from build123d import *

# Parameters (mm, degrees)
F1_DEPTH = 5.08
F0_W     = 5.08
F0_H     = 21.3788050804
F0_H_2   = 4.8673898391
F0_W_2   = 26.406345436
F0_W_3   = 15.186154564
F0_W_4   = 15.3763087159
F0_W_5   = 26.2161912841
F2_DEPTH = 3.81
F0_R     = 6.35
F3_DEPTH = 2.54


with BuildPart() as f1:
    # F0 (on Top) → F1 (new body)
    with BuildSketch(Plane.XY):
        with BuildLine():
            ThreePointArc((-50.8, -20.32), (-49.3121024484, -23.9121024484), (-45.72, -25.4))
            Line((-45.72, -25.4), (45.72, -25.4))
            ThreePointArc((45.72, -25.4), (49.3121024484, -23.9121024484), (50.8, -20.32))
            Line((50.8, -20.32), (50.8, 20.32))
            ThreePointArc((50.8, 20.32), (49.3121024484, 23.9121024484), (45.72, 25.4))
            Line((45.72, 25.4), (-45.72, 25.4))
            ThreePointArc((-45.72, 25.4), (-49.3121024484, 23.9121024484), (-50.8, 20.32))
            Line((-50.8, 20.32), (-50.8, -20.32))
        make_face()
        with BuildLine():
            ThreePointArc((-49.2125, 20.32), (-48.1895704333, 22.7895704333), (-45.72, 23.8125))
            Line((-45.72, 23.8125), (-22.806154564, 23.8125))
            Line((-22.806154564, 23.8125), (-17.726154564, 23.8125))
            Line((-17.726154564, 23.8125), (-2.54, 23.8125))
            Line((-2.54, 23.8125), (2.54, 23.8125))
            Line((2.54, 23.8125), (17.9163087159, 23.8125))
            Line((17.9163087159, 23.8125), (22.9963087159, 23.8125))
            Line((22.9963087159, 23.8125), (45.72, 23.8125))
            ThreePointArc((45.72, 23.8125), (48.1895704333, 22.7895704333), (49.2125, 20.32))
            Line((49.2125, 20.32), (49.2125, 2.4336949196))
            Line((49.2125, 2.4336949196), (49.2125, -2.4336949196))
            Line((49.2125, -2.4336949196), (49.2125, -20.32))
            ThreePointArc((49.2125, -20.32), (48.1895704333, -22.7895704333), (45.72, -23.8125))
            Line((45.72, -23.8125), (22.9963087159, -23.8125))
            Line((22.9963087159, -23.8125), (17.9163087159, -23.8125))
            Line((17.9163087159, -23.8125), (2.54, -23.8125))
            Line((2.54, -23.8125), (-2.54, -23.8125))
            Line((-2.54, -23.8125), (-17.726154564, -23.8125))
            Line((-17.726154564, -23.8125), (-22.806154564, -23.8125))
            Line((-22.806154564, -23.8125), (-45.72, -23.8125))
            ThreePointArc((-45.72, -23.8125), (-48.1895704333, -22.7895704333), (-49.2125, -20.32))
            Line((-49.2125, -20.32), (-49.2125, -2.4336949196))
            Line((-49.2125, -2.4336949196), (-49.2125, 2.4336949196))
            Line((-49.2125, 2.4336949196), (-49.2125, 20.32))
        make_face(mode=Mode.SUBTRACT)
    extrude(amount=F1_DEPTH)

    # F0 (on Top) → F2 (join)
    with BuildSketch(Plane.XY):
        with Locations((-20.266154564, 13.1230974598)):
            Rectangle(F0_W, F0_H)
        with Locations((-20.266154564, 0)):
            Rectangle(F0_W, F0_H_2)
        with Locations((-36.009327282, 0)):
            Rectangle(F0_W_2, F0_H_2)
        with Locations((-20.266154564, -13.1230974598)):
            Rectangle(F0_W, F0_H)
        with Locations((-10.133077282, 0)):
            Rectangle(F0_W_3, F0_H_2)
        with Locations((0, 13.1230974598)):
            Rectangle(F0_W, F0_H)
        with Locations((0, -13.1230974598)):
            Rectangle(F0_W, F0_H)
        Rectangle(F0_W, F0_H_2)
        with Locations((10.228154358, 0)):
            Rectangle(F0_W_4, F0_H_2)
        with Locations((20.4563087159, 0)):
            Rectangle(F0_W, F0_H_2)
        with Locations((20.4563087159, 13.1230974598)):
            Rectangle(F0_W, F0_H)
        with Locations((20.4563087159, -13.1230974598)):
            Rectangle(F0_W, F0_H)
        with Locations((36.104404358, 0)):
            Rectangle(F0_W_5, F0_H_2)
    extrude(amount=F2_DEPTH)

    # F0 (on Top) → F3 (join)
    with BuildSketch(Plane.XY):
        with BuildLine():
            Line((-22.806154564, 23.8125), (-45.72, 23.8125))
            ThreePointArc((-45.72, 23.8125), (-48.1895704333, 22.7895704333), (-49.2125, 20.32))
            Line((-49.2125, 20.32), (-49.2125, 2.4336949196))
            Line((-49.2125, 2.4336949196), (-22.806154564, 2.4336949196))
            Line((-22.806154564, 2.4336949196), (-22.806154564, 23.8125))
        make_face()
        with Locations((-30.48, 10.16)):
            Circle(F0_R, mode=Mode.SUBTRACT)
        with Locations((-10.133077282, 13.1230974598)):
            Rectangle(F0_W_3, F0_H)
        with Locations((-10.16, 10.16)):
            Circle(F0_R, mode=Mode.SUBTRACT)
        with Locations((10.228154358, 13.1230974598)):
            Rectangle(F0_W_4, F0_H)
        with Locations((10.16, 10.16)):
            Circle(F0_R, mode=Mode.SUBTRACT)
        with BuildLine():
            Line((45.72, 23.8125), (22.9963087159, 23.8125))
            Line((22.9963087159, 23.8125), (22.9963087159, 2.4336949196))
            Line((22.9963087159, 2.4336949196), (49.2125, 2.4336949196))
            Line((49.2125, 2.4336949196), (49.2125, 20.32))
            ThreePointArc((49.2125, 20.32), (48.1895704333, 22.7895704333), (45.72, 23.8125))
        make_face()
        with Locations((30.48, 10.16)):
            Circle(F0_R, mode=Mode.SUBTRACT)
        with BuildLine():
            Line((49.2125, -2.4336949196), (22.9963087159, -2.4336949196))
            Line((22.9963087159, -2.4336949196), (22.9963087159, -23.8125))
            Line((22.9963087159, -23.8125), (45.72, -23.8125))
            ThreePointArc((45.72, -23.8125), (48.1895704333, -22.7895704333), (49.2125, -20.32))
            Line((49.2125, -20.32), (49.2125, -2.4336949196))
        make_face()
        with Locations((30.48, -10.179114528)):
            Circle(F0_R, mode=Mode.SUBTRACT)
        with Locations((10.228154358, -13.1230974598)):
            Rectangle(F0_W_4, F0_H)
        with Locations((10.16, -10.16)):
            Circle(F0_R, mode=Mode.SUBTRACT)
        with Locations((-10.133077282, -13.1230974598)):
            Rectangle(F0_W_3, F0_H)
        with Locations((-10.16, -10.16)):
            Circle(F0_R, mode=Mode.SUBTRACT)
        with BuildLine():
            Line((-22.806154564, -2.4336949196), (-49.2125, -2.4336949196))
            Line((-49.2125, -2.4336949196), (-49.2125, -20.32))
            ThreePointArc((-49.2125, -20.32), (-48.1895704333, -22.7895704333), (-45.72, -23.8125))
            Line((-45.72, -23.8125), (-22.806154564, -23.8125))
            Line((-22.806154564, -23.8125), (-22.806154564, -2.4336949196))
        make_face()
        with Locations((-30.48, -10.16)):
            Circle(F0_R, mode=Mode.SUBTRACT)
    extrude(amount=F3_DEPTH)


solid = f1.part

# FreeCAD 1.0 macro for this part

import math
import FreeCAD as App
import Part
import Sketcher
Q = App.Units.Quantity


def add_polygon(sketch, points):
    """Adds a closed chain of lines whose ends are joined by coincident constraints."""
    first, n = sketch.GeometryCount, len(points)
    for a, b in zip(points, points[1:] + points[:1]):
        sketch.addGeometry(Part.LineSegment(App.Vector(*a, 0), App.Vector(*b, 0)), False)
    for i in range(n):
        sketch.addConstraint(Sketcher.Constraint("Coincident", first + i, 2, first + (i + 1) % n, 1))

doc = App.newDocument("Part")
params = doc.addObject("Spreadsheet::Sheet", "Params")
for row, (alias, value) in enumerate([
    ("sketch1_radius", "0.2 in"),
    ("sketch1_width", "3.6 in"),
    ("sketch1_height", "1.6 in"),
    ("pad1_length", "0.2 in"),
    ("sketch2_width", "0.2 in"),
    ("pad2_length", "0.15 in"),
    ("sketch3_diameter", "0.5 in"),
    ("pad3_length", "0.1 in"),
], start=1):
    params.set(f"A{row}", alias)
    params.set(f"B{row}", "=" + value)
    params.setAlias(f"B{row}", alias)

body = doc.addObject("PartDesign::Body", "Body")

# Sketch on XY plane
sketch1 = body.newObject("Sketcher::SketchObject", "Sketch")
sketch1.AttachmentSupport = (doc.getObject("XY_Plane"), [""])
sketch1.MapMode = "FlatFace"
sketch1.addGeometry([
    Part.ArcOfCircle(Part.Circle(App.Vector(-45.7, -20.3, 0), App.Vector(0, 0, 1), 5.1), math.radians(180), math.radians(270)),  # 0
    Part.LineSegment(App.Vector(-45.7, -25.4, 0), App.Vector(45.7, -25.4, 0)),  # 1
    Part.ArcOfCircle(Part.Circle(App.Vector(45.7, -20.3, 0), App.Vector(0, 0, 1), 5.1), math.radians(-90), math.radians(0)),  # 2
    Part.LineSegment(App.Vector(50.8, -20.3, 0), App.Vector(50.8, 20.3, 0)),  # 3
    Part.ArcOfCircle(Part.Circle(App.Vector(45.7, 20.3, 0), App.Vector(0, 0, 1), 5.1), math.radians(0), math.radians(90)),  # 4
    Part.LineSegment(App.Vector(45.7, 25.4, 0), App.Vector(-45.7, 25.4, 0)),  # 5
    Part.ArcOfCircle(Part.Circle(App.Vector(-45.7, 20.3, 0), App.Vector(0, 0, 1), 5.1), math.radians(90), math.radians(180)),  # 6
    Part.LineSegment(App.Vector(-50.8, 20.3, 0), App.Vector(-50.8, -20.3, 0)),  # 7
    Part.LineSegment(App.Vector(-49.2, -20.3, 0), App.Vector(-49.2, 20.3, 0)),  # 8
    Part.ArcOfCircle(Part.Circle(App.Vector(-45.7, 20.3, 0), App.Vector(0, 0, 1), 3.5), math.radians(90), math.radians(180)),  # 9
    Part.LineSegment(App.Vector(-45.7, 23.8, 0), App.Vector(45.7, 23.8, 0)),  # 10
    Part.ArcOfCircle(Part.Circle(App.Vector(45.7, 20.3, 0), App.Vector(0, 0, 1), 3.5), math.radians(0), math.radians(90)),  # 11
    Part.LineSegment(App.Vector(49.2, 20.3, 0), App.Vector(49.2, -20.3, 0)),  # 12
    Part.ArcOfCircle(Part.Circle(App.Vector(45.7, -20.3, 0), App.Vector(0, 0, 1), 3.5), math.radians(-90), math.radians(0)),  # 13
    Part.LineSegment(App.Vector(45.7, -23.8, 0), App.Vector(-45.7, -23.8, 0)),  # 14
    Part.ArcOfCircle(Part.Circle(App.Vector(-45.7, -20.3, 0), App.Vector(0, 0, 1), 3.5), math.radians(180), math.radians(270)),  # 15
], False)
sketch1.addConstraint([
    Sketcher.Constraint("Tangent", 0, 2, 1, 1),
    Sketcher.Constraint("Tangent", 1, 2, 2, 1),
    Sketcher.Constraint("Tangent", 2, 2, 3, 1),
    Sketcher.Constraint("Tangent", 3, 2, 4, 1),
    Sketcher.Constraint("Tangent", 4, 2, 5, 1),
    Sketcher.Constraint("Tangent", 5, 2, 6, 1),
    Sketcher.Constraint("Tangent", 6, 2, 7, 1),
    Sketcher.Constraint("Tangent", 7, 2, 0, 1),
    Sketcher.Constraint("Tangent", 8, 2, 9, 2),
    Sketcher.Constraint("Tangent", 9, 1, 10, 1),
    Sketcher.Constraint("Tangent", 10, 2, 11, 2),
    Sketcher.Constraint("Tangent", 11, 1, 12, 1),
    Sketcher.Constraint("Tangent", 12, 2, 13, 2),
    Sketcher.Constraint("Tangent", 13, 1, 14, 1),
    Sketcher.Constraint("Tangent", 14, 2, 15, 2),
    Sketcher.Constraint("Tangent", 15, 1, 8, 1),
    Sketcher.Constraint("Horizontal", 1),
    Sketcher.Constraint("Vertical", 3),
    Sketcher.Constraint("Horizontal", 5),
    Sketcher.Constraint("Vertical", 7),
    Sketcher.Constraint("Vertical", 8),
    Sketcher.Constraint("Horizontal", 10),
    Sketcher.Constraint("Vertical", 12),
    Sketcher.Constraint("Horizontal", 14),
    Sketcher.Constraint("Coincident", 9, 3, 6, 3),
    Sketcher.Constraint("Coincident", 11, 3, 4, 3),
    Sketcher.Constraint("Coincident", 13, 3, 2, 3),
    Sketcher.Constraint("Equal", 0, 2),
    Sketcher.Constraint("Equal", 2, 4),
    Sketcher.Constraint("Equal", 4, 6),
    Sketcher.Constraint("Equal", 13, 15),
    Sketcher.Constraint("Symmetric", 0, 3, 4, 3, -1, 1),
    Sketcher.Constraint("Radius", 0, Q("0.2 in")),
    Sketcher.Constraint("DistanceX", 1, 1, 1, 2, Q("3.6 in")),
    Sketcher.Constraint("DistanceY", 3, 1, 3, 2, Q("1.6 in")),
    Sketcher.Constraint("Radius", 9, Q("0.1375 in")),
])
sketch1.setExpression("Constraints[32]", "Params.sketch1_radius")
sketch1.setExpression("Constraints[33]", "Params.sketch1_width")
sketch1.setExpression("Constraints[34]", "Params.sketch1_height")
pad1 = body.newObject("PartDesign::Pad", "Pad")
pad1.Profile = sketch1
pad1.setExpression("Length", "Params.pad1_length")

# Sketch on XY plane
sketch2 = body.newObject("Sketcher::SketchObject", "Sketch001")
sketch2.AttachmentSupport = (doc.getObject("XY_Plane"), [""])
sketch2.MapMode = "FlatFace"
add_polygon(sketch2, [(-22.8, 23.8), (-22.8, 2.4), (-49.2, 2.4), (-49.2, -2.4), (-22.8, -2.4), (-22.8, -23.8), (-17.7, -23.8), (-17.7, -2.4), (-2.5, -2.4), (-2.5, -23.8), (2.5, -23.8), (2.5, -2.4), (17.9, -2.4), (17.9, -23.8), (23, -23.8), (23, -2.4), (49.2, -2.4), (49.2, 2.4), (23, 2.4), (23, 23.8), (17.9, 23.8), (17.9, 2.4), (2.5, 2.4), (2.5, 23.8), (-2.5, 23.8), (-2.5, 2.4), (-17.7, 2.4), (-17.7, 23.8)])  # lines 0-27
sketch2.addConstraint([
    Sketcher.Constraint("Vertical", 0),
    Sketcher.Constraint("Horizontal", 1),
    Sketcher.Constraint("Vertical", 2),
    Sketcher.Constraint("Horizontal", 3),
    Sketcher.Constraint("Vertical", 4),
    Sketcher.Constraint("Horizontal", 5),
    Sketcher.Constraint("Vertical", 6),
    Sketcher.Constraint("Horizontal", 7),
    Sketcher.Constraint("Vertical", 8),
    Sketcher.Constraint("Horizontal", 9),
    Sketcher.Constraint("Vertical", 10),
    Sketcher.Constraint("Horizontal", 11),
    Sketcher.Constraint("Vertical", 12),
    Sketcher.Constraint("Horizontal", 13),
    Sketcher.Constraint("Vertical", 14),
    Sketcher.Constraint("Horizontal", 15),
    Sketcher.Constraint("Vertical", 16),
    Sketcher.Constraint("Horizontal", 17),
    Sketcher.Constraint("Vertical", 18),
    Sketcher.Constraint("Horizontal", 19),
    Sketcher.Constraint("Vertical", 20),
    Sketcher.Constraint("Horizontal", 21),
    Sketcher.Constraint("Vertical", 22),
    Sketcher.Constraint("Horizontal", 23),
    Sketcher.Constraint("Vertical", 24),
    Sketcher.Constraint("Horizontal", 25),
    Sketcher.Constraint("Vertical", 26),
    Sketcher.Constraint("Horizontal", 27),
    Sketcher.Constraint("Symmetric", 1, 2, 15, 2, -1, 1),
    Sketcher.Constraint("Symmetric", 7, 2, 21, 2, -1, 1),
    Sketcher.Constraint("Symmetric", 9, 2, 23, 2, -1, 1),
    Sketcher.Constraint("Symmetric", 7, 2, 10, 2, -2),
    Sketcher.Constraint("Symmetric", 0, 2, 3, 2, -1),
    Sketcher.Constraint("Symmetric", 14, 2, 17, 2, -1),
    Sketcher.Constraint("Symmetric", 12, 2, 19, 2, -1),
    Sketcher.Constraint("Symmetric", 6, 2, 25, 2, -1),
    Sketcher.Constraint("Horizontal", 3, 2, 6, 2),
    Sketcher.Constraint("Horizontal", 5, 2, 8, 2),
    Sketcher.Constraint("Horizontal", 9, 2, 12, 2),
    Sketcher.Constraint("Horizontal", 23, 2, 26, 2),
    Sketcher.Constraint("Equal", 5, 9),
    Sketcher.Constraint("Equal", 9, 13),
    Sketcher.Constraint("DistanceX", 5, 1, 5, 2, Q("0.2 in")),
    Sketcher.Constraint("DistanceX", 1, 2, -1, 1, Q("1.9375 in")),
    Sketcher.Constraint("DistanceY", 4, 2, -1, 1, Q("0.9375 in")),
    Sketcher.Constraint("DistanceX", 11, 1, 11, 2, 15.376309),
    Sketcher.Constraint("DistanceY", 2, 2, 2, 1, 4.86739),
    Sketcher.Constraint("DistanceX", 1, 2, 1, 1, 26.406345),
])
sketch2.setExpression("Constraints[70]", "Params.sketch2_width")
pad2 = body.newObject("PartDesign::Pad", "Pad001")
pad2.Profile = sketch2
pad2.setExpression("Length", "Params.pad2_length")

# Sketch on XY plane
sketch3 = body.newObject("Sketcher::SketchObject", "Sketch002")
sketch3.AttachmentSupport = (doc.getObject("XY_Plane"), [""])
sketch3.MapMode = "FlatFace"
sketch3.addGeometry(Part.LineSegment(App.Vector(-22.8, 23.8, 0), App.Vector(-45.7, 23.8, 0)), False)  # 0
sketch3.addGeometry(Part.ArcOfCircle(Part.Circle(App.Vector(-45.7, 20.3, 0), App.Vector(0, 0, 1), 3.5), math.radians(90), math.radians(180)), False)  # 1
sketch3.addGeometry(Part.LineSegment(App.Vector(-49.2, 20.3, 0), App.Vector(-49.2, 2.4, 0)), False)  # 2
sketch3.addGeometry(Part.LineSegment(App.Vector(-49.2, 2.4, 0), App.Vector(-22.8, 2.4, 0)), False)  # 3
sketch3.addGeometry(Part.LineSegment(App.Vector(-22.8, 2.4, 0), App.Vector(-22.8, 23.8, 0)), False)  # 4
sketch3.addGeometry(Part.Circle(App.Vector(-30.5, 10.2, 0), App.Vector(0, 0, 1), 6.3), False)  # 5
add_polygon(sketch3, [(-17.7, 23.8), (-17.7, 2.4), (-2.5, 2.4), (-2.5, 23.8)])  # lines 6-9
sketch3.addGeometry(Part.Circle(App.Vector(-10.2, 10.2, 0), App.Vector(0, 0, 1), 6.3), False)  # 10
add_polygon(sketch3, [(2.5, 23.8), (2.5, 2.4), (17.9, 2.4), (17.9, 23.8)])  # lines 11-14
sketch3.addGeometry(Part.Circle(App.Vector(10.2, 10.2, 0), App.Vector(0, 0, 1), 6.3), False)  # 15
sketch3.addGeometry(Part.LineSegment(App.Vector(45.7, 23.8, 0), App.Vector(23, 23.8, 0)), False)  # 16
sketch3.addGeometry(Part.LineSegment(App.Vector(23, 23.8, 0), App.Vector(23, 2.4, 0)), False)  # 17
sketch3.addGeometry(Part.LineSegment(App.Vector(23, 2.4, 0), App.Vector(49.2, 2.4, 0)), False)  # 18
sketch3.addGeometry(Part.LineSegment(App.Vector(49.2, 2.4, 0), App.Vector(49.2, 20.3, 0)), False)  # 19
sketch3.addGeometry(Part.ArcOfCircle(Part.Circle(App.Vector(45.7, 20.3, 0), App.Vector(0, 0, 1), 3.5), math.radians(0), math.radians(90)), False)  # 20
sketch3.addGeometry(Part.Circle(App.Vector(30.5, 10.2, 0), App.Vector(0, 0, 1), 6.3), False)  # 21
sketch3.addGeometry(Part.LineSegment(App.Vector(49.2, -2.4, 0), App.Vector(23, -2.4, 0)), False)  # 22
sketch3.addGeometry(Part.LineSegment(App.Vector(23, -2.4, 0), App.Vector(23, -23.8, 0)), False)  # 23
sketch3.addGeometry(Part.LineSegment(App.Vector(23, -23.8, 0), App.Vector(45.7, -23.8, 0)), False)  # 24
sketch3.addGeometry(Part.ArcOfCircle(Part.Circle(App.Vector(45.7, -20.3, 0), App.Vector(0, 0, 1), 3.5), math.radians(-90), math.radians(0)), False)  # 25
sketch3.addGeometry(Part.LineSegment(App.Vector(49.2, -20.3, 0), App.Vector(49.2, -2.4, 0)), False)  # 26
sketch3.addGeometry(Part.Circle(App.Vector(30.5, -10.2, 0), App.Vector(0, 0, 1), 6.3), False)  # 27
add_polygon(sketch3, [(2.5, -2.4), (2.5, -23.8), (17.9, -23.8), (17.9, -2.4)])  # lines 28-31
sketch3.addGeometry(Part.Circle(App.Vector(10.2, -10.2, 0), App.Vector(0, 0, 1), 6.3), False)  # 32
add_polygon(sketch3, [(-17.7, -2.4), (-17.7, -23.8), (-2.5, -23.8), (-2.5, -2.4)])  # lines 33-36
sketch3.addGeometry(Part.Circle(App.Vector(-10.2, -10.2, 0), App.Vector(0, 0, 1), 6.3), False)  # 37
sketch3.addGeometry(Part.LineSegment(App.Vector(-22.8, -2.4, 0), App.Vector(-49.2, -2.4, 0)), False)  # 38
sketch3.addGeometry(Part.LineSegment(App.Vector(-49.2, -2.4, 0), App.Vector(-49.2, -20.3, 0)), False)  # 39
sketch3.addGeometry(Part.ArcOfCircle(Part.Circle(App.Vector(-45.7, -20.3, 0), App.Vector(0, 0, 1), 3.5), math.radians(180), math.radians(270)), False)  # 40
sketch3.addGeometry(Part.LineSegment(App.Vector(-45.7, -23.8, 0), App.Vector(-22.8, -23.8, 0)), False)  # 41
sketch3.addGeometry(Part.LineSegment(App.Vector(-22.8, -23.8, 0), App.Vector(-22.8, -2.4, 0)), False)  # 42
sketch3.addGeometry(Part.Circle(App.Vector(-30.5, -10.2, 0), App.Vector(0, 0, 1), 6.3), False)  # 43
sketch3.addConstraint([
    Sketcher.Constraint("Tangent", 0, 2, 1, 1),
    Sketcher.Constraint("Tangent", 1, 2, 2, 1),
    Sketcher.Constraint("Coincident", 2, 2, 3, 1),
    Sketcher.Constraint("Coincident", 3, 2, 4, 1),
    Sketcher.Constraint("Coincident", 4, 2, 0, 1),
    Sketcher.Constraint("Coincident", 16, 2, 17, 1),
    Sketcher.Constraint("Coincident", 17, 2, 18, 1),
    Sketcher.Constraint("Coincident", 18, 2, 19, 1),
    Sketcher.Constraint("Tangent", 19, 2, 20, 1),
    Sketcher.Constraint("Tangent", 20, 2, 16, 1),
    Sketcher.Constraint("Coincident", 22, 2, 23, 1),
    Sketcher.Constraint("Coincident", 23, 2, 24, 1),
    Sketcher.Constraint("Tangent", 24, 2, 25, 1),
    Sketcher.Constraint("Tangent", 25, 2, 26, 1),
    Sketcher.Constraint("Coincident", 26, 2, 22, 1),
    Sketcher.Constraint("Coincident", 38, 2, 39, 1),
    Sketcher.Constraint("Tangent", 39, 2, 40, 1),
    Sketcher.Constraint("Tangent", 40, 2, 41, 1),
    Sketcher.Constraint("Coincident", 41, 2, 42, 1),
    Sketcher.Constraint("Coincident", 42, 2, 38, 1),
    Sketcher.Constraint("Horizontal", 0),
    Sketcher.Constraint("Vertical", 2),
    Sketcher.Constraint("Horizontal", 3),
    Sketcher.Constraint("Vertical", 4),
    Sketcher.Constraint("Vertical", 6),
    Sketcher.Constraint("Horizontal", 7),
    Sketcher.Constraint("Vertical", 8),
    Sketcher.Constraint("Horizontal", 9),
    Sketcher.Constraint("Vertical", 11),
    Sketcher.Constraint("Horizontal", 12),
    Sketcher.Constraint("Vertical", 13),
    Sketcher.Constraint("Horizontal", 14),
    Sketcher.Constraint("Horizontal", 16),
    Sketcher.Constraint("Vertical", 17),
    Sketcher.Constraint("Horizontal", 18),
    Sketcher.Constraint("Vertical", 19),
    Sketcher.Constraint("Horizontal", 22),
    Sketcher.Constraint("Vertical", 23),
    Sketcher.Constraint("Horizontal", 24),
    Sketcher.Constraint("Vertical", 26),
    Sketcher.Constraint("Vertical", 28),
    Sketcher.Constraint("Horizontal", 29),
    Sketcher.Constraint("Vertical", 30),
    Sketcher.Constraint("Horizontal", 31),
    Sketcher.Constraint("Vertical", 33),
    Sketcher.Constraint("Horizontal", 34),
    Sketcher.Constraint("Vertical", 35),
    Sketcher.Constraint("Horizontal", 36),
    Sketcher.Constraint("Horizontal", 38),
    Sketcher.Constraint("Vertical", 39),
    Sketcher.Constraint("Horizontal", 41),
    Sketcher.Constraint("Vertical", 42),
    Sketcher.Constraint("Equal", 5, 10),
    Sketcher.Constraint("Equal", 10, 15),
    Sketcher.Constraint("Equal", 1, 20),
    Sketcher.Constraint("Equal", 15, 21),
    Sketcher.Constraint("Equal", 20, 25),
    Sketcher.Constraint("Equal", 21, 27),
    Sketcher.Constraint("Equal", 27, 32),
    Sketcher.Constraint("Equal", 32, 37),
    Sketcher.Constraint("Equal", 25, 40),
    Sketcher.Constraint("Equal", 37, 43),
    Sketcher.Constraint("Symmetric", 1, 3, 25, 3, -1, 1),
    Sketcher.Constraint("Symmetric", 10, 3, 32, 3, -1, 1),
    Sketcher.Constraint("Symmetric", 15, 3, 37, 3, -1, 1),
    Sketcher.Constraint("Symmetric", 20, 3, 40, 3, -1, 1),
    Sketcher.Constraint("Symmetric", 21, 3, 43, 3, -1, 1),
    Sketcher.Constraint("Symmetric", 8, 2, 28, 2, -1, 1),
    Sketcher.Constraint("Symmetric", 14, 2, 34, 2, -1, 1),
    Sketcher.Constraint("Symmetric", 10, 3, 15, 3, -2),
    Sketcher.Constraint("Symmetric", 1, 3, 20, 3, -2),
    Sketcher.Constraint("Symmetric", 5, 3, 21, 3, -2),
    Sketcher.Constraint("Symmetric", 7, 2, 11, 2, -2),
    Sketcher.Constraint("Symmetric", 17, 2, 22, 2, -1),
    Sketcher.Constraint("Symmetric", 13, 2, 29, 2, -1),
    Sketcher.Constraint("Symmetric", 6, 2, 36, 2, -1),
    Sketcher.Constraint("Symmetric", 3, 2, 42, 2, -1),
    Sketcher.Constraint("Horizontal", 5, 3, 10, 3),
    Sketcher.Constraint("Horizontal", 3, 2, 6, 2),
    Sketcher.Constraint("Horizontal", 4, 2, 8, 2),
    Sketcher.Constraint("Horizontal", 12, 2, 17, 2),
    Sketcher.Constraint("Horizontal", 26, 2, 30, 2),
    Sketcher.Constraint("Vertical", 21, 3, 27, 3),
    Sketcher.Constraint("Diameter", 5, Q("0.5 in")),
    Sketcher.Constraint("DistanceX", 5, 3, 20, 3, Q("3 in")),
    Sketcher.Constraint("DistanceX", 1, 3, -1, 1, Q("1.8 in")),
    Sketcher.Constraint("DistanceY", -1, 1, 1, 3, Q("0.8 in")),
    Sketcher.Constraint("DistanceY", -1, 1, 5, 3, Q("0.4 in")),
    Sketcher.Constraint("DistanceX", 10, 3, -1, 1, Q("0.4 in")),
    Sketcher.Constraint("DistanceX", 7, 2, -1, 1, Q("0.1 in")),
    Sketcher.Constraint("Radius", 1, Q("0.1375 in")),
    Sketcher.Constraint("DistanceX", 3, 2, 6, 2, Q("0.2 in")),
    Sketcher.Constraint("DistanceX", 13, 2, 16, 2, Q("0.2 in")),
    Sketcher.Constraint("DistanceX", 12, 1, 12, 2, 15.376309),
    Sketcher.Constraint("DistanceX", 0, 2, 0, 1, 22.913845),
    Sketcher.Constraint("DistanceY", 2, 2, 2, 1, 17.886305),
    Sketcher.Constraint("DistanceY", 27, 3, 12, 2, 12.612809),
])
sketch3.setExpression("Constraints[99]", "Params.sketch3_diameter")
pad3 = body.newObject("PartDesign::Pad", "Pad002")
pad3.Profile = sketch3
pad3.setExpression("Length", "Params.pad3_length")

doc.recompute()
